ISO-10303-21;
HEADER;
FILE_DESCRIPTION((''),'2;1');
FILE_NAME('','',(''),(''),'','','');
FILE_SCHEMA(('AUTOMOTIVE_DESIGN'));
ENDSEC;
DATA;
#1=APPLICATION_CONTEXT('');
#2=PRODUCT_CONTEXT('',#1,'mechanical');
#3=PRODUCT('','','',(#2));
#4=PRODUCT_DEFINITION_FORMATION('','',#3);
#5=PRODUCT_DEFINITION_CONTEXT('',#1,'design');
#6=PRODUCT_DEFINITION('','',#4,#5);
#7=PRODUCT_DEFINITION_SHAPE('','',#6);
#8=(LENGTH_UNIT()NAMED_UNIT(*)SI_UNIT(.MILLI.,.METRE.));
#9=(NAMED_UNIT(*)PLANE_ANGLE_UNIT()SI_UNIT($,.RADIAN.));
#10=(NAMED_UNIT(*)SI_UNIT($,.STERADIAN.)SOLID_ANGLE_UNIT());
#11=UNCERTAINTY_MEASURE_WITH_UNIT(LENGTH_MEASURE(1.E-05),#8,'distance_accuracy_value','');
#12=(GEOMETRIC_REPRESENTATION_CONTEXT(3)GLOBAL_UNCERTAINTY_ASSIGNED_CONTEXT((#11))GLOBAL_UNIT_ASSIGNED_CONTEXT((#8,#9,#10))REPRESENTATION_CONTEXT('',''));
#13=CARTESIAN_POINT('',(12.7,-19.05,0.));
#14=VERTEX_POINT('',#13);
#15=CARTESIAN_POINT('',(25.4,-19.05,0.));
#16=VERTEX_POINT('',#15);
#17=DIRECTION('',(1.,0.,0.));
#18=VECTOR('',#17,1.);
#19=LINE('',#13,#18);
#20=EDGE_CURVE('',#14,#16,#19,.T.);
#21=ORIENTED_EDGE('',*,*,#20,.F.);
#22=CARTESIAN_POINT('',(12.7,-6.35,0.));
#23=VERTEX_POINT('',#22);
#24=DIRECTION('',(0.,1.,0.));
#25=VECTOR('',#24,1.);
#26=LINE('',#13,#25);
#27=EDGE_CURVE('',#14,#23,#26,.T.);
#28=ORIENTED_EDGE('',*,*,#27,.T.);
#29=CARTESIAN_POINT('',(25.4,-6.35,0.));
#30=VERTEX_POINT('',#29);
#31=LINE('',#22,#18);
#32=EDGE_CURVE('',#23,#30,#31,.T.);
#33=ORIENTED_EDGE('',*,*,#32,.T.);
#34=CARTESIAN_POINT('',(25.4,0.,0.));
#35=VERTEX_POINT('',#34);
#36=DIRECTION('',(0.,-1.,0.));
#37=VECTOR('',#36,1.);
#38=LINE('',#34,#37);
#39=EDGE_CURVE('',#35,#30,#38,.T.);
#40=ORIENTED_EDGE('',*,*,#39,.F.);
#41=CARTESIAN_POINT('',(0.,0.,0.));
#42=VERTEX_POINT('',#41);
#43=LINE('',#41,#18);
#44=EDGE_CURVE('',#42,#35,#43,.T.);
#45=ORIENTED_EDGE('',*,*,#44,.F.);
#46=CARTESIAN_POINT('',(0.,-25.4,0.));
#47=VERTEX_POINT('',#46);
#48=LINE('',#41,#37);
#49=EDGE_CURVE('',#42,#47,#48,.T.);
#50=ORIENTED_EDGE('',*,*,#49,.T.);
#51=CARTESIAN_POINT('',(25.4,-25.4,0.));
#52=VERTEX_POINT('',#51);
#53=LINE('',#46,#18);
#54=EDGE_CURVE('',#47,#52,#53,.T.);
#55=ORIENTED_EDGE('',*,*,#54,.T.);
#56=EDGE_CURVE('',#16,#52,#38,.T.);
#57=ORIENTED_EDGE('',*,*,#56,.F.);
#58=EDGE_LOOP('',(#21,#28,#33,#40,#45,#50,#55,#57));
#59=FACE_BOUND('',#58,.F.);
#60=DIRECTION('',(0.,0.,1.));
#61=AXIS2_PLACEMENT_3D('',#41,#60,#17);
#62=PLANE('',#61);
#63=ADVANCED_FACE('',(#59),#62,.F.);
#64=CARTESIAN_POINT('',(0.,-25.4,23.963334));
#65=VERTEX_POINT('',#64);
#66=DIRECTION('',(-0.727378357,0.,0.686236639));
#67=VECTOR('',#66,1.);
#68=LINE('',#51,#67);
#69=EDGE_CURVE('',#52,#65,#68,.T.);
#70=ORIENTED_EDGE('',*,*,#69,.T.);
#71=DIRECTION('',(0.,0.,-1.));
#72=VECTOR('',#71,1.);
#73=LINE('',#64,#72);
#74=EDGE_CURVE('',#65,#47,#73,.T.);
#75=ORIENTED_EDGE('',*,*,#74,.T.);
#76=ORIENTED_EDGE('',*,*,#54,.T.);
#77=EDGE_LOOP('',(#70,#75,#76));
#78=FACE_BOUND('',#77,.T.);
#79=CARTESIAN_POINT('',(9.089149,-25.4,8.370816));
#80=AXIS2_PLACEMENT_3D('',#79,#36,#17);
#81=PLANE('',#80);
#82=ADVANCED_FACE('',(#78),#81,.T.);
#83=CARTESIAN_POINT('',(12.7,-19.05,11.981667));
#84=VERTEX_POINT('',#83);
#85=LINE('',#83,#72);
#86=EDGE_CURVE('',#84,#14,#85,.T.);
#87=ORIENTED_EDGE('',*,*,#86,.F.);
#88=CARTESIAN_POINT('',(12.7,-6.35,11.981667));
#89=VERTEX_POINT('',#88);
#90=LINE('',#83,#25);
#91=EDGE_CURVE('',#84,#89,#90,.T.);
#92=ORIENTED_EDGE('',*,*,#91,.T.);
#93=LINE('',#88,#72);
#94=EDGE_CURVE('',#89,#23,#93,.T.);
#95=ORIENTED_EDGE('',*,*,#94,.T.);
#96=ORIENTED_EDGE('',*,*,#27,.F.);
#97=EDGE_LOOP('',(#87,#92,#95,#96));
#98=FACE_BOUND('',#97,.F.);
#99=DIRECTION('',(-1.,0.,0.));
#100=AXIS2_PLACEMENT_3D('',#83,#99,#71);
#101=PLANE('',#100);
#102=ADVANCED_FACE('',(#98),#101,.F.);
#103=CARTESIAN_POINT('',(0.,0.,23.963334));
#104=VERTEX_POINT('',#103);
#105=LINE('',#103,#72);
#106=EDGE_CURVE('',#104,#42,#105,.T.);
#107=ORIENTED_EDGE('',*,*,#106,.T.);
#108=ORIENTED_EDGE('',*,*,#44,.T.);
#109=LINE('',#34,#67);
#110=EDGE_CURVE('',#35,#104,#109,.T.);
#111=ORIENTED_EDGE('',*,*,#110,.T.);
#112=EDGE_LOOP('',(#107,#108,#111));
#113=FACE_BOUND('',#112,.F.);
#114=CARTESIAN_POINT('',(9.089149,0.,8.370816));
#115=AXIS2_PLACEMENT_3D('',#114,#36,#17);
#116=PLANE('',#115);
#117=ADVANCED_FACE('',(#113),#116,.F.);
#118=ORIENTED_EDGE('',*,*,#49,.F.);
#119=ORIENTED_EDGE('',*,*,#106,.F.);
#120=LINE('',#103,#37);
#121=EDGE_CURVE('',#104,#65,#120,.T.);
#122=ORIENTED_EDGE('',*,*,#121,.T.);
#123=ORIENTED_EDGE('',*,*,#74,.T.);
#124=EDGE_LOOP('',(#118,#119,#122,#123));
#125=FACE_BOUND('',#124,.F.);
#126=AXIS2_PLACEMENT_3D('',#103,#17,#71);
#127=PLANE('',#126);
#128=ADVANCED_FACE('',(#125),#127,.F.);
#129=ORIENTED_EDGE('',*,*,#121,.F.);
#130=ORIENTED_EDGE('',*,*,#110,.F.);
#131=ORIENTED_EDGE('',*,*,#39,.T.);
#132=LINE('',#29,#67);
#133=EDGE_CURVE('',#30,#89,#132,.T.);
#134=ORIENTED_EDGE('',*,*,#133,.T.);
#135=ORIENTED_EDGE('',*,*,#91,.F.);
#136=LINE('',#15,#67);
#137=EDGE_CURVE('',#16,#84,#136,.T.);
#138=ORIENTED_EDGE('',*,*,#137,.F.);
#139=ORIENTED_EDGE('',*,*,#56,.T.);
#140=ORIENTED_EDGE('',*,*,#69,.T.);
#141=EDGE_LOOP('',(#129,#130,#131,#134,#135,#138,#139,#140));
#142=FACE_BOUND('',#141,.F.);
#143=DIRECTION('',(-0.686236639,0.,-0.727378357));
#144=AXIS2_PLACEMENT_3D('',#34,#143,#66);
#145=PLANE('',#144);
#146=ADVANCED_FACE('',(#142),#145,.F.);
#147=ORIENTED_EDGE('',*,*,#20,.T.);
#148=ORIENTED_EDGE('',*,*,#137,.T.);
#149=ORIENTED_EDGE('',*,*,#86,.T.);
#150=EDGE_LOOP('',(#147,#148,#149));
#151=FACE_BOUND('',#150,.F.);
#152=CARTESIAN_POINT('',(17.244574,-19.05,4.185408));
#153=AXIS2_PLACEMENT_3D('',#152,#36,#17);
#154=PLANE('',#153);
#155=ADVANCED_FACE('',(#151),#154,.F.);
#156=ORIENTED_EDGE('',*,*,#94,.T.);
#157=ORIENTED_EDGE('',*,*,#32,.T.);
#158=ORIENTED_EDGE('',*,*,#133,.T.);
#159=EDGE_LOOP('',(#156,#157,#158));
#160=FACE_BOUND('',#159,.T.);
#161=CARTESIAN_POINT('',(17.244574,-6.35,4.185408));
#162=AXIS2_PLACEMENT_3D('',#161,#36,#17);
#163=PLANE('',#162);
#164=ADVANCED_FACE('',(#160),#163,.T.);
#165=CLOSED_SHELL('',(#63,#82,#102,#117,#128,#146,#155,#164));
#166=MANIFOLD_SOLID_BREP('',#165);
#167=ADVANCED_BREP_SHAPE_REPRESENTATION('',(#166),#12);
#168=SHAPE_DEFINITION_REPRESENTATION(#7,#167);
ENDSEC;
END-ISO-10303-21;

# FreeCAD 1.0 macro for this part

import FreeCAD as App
import Part
import Sketcher

V = App.Vector
Q = App.Units.Quantity

doc = App.newDocument("Part")
body = doc.addObject("PartDesign::Body", "Body")

# Sketch on XZ plane
sketch1 = body.newObject("Sketcher::SketchObject", "Sketch")
sketch1.AttachmentSupport = (doc.getObject("XZ_Plane"), [""])
sketch1.MapMode = "FlatFace"
sketch1.addGeometry(Part.LineSegment(V(0, 24, 0), V(0, 0, 0)), False)
sketch1.addGeometry(Part.LineSegment(V(0, 0, 0), V(25, 0, 0)), False)
sketch1.addGeometry(Part.LineSegment(V(25, 0, 0), V(0, 24, 0)), False)
sketch1.addConstraint(Sketcher.Constraint("Coincident", 0, 2, 1, 1))
sketch1.addConstraint(Sketcher.Constraint("Coincident", 1, 2, 2, 1))
sketch1.addConstraint(Sketcher.Constraint("Coincident", 2, 2, 0, 1))
sketch1.addConstraint(Sketcher.Constraint("Vertical", 0))
sketch1.addConstraint(Sketcher.Constraint("Horizontal", 1))
sketch1.addConstraint(Sketcher.Constraint("Coincident", 0, 2, -1, 1))
sketch1.addConstraint(Sketcher.Constraint("DistanceX", 1, 1, 1, 2, Q("1 in")))
sketch1.addConstraint(Sketcher.Constraint("Distance", 2, 34.919928))
pad1 = body.newObject("PartDesign::Pad", "Pad")
pad1.Profile = sketch1
pad1.Length = Q("1 in")

# Sketch on XZ plane
sketch2 = body.newObject("Sketcher::SketchObject", "Sketch001")
sketch2.AttachmentSupport = (doc.getObject("XZ_Plane"), [""])
sketch2.MapMode = "FlatFace"
sketch2.AttachmentOffset = App.Placement(V(0, 0, 0.75 * 25.4), App.Rotation())
sketch2.addGeometry(Part.LineSegment(V(25, 0, 0), V(13, 12, 0)), False)
sketch2.addGeometry(Part.LineSegment(V(13, 12, 0), V(13, 0, 0)), False)
sketch2.addGeometry(Part.LineSegment(V(13, 0, 0), V(25, 0, 0)), False)
sketch2.addConstraint(Sketcher.Constraint("Coincident", 0, 2, 1, 1))
sketch2.addConstraint(Sketcher.Constraint("Coincident", 1, 2, 2, 1))
sketch2.addConstraint(Sketcher.Constraint("Coincident", 2, 2, 0, 1))
sketch2.addConstraint(Sketcher.Constraint("Vertical", 1))
sketch2.addConstraint(Sketcher.Constraint("Horizontal", 2))
sketch2.addConstraint(Sketcher.Constraint("PointOnObject", 1, 2, -1))
sketch2.addConstraint(Sketcher.Constraint("DistanceX", 2, 1, 2, 2, Q("0.5 in")))
sketch2.addConstraint(Sketcher.Constraint("DistanceX", -1, 1, 2, 2, Q("1 in")))
sketch2.addConstraint(Sketcher.Constraint("Distance", 0, Q("0.6874002 in")))
pocket1 = body.newObject("PartDesign::Pocket", "Pocket")
pocket1.Profile = sketch2
pocket1.Length = Q("0.5 in")

doc.recompute()
